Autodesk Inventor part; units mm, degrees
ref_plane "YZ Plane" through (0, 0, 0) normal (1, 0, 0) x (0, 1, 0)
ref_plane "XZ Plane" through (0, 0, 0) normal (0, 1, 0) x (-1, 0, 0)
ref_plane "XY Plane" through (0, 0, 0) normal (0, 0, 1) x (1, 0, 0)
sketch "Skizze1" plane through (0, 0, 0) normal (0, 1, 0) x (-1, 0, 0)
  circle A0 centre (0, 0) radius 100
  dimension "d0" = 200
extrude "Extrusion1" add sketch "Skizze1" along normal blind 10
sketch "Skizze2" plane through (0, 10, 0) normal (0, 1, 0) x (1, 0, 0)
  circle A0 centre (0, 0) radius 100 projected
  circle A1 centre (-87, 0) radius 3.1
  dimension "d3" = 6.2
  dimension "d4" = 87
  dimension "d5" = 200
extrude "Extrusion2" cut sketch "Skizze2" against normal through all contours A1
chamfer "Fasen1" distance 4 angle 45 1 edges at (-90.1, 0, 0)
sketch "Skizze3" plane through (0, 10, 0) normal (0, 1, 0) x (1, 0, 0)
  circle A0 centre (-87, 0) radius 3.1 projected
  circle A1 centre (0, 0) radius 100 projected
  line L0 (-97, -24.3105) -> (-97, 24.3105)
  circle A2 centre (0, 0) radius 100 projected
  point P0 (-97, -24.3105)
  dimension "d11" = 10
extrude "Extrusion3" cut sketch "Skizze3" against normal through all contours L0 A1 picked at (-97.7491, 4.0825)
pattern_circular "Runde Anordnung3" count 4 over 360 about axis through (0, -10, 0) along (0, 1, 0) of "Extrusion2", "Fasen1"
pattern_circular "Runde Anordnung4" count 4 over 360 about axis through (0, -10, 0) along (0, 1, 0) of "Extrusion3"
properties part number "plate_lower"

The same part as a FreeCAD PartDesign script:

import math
import FreeCAD as App
import Part
import Sketcher
Q = App.Units.Quantity


def edges_at(feature, points):
    """Names of the edges that pass closest to the given points."""
    edges = feature.Shape.Edges
    near = lambda p: min(range(len(edges)), key=lambda i: edges[i].distToShape(Part.Vertex(*p))[0])
    return sorted({f"Edge{near(p) + 1}" for p in points})

doc = App.newDocument("Part")
body = doc.addObject("PartDesign::Body", "Body")

# Sketch on XZ plane
sketch1 = body.newObject("Sketcher::SketchObject", "Sketch")
sketch1.AttachmentSupport = (doc.getObject("XZ_Plane"), [""])
sketch1.MapMode = "FlatFace"
sketch1.addGeometry(Part.Circle(App.Vector(0, 0, 0), App.Vector(0, 0, 1), 100), False)
sketch1.addConstraint(Sketcher.Constraint("Coincident", 0, 3, -1, 1))
sketch1.addConstraint(Sketcher.Constraint("Diameter", 0, Q("200 mm")))
pad1 = body.newObject("PartDesign::Pad", "Pad")
pad1.Profile = sketch1
pad1.Length = 10
pad1.Reversed = True

# Sketch on XZ plane
sketch2 = body.newObject("Sketcher::SketchObject", "Sketch001")
sketch2.AttachmentSupport = (doc.getObject("XZ_Plane"), [""])
sketch2.MapMode = "FlatFace"
sketch2.AttachmentOffset = App.Placement(App.Vector(0, 0, -10), App.Rotation())
sketch2.addGeometry(Part.Circle(App.Vector(-87, 0, 0), App.Vector(0, 0, 1), 3.1), False)
sketch2.addConstraint(Sketcher.Constraint("PointOnObject", 0, 3, -1))
sketch2.addConstraint(Sketcher.Constraint("Diameter", 0, Q("6.2 mm")))
sketch2.addConstraint(Sketcher.Constraint("DistanceX", 0, 3, -1, 1, Q("87 mm")))
pocket1 = body.newObject("PartDesign::Pocket", "Pocket")
pocket1.Profile = sketch2
pocket1.Type = "ThroughAll"
pocket1.Reversed = True
doc.recompute()

chamfer = body.newObject("PartDesign::Chamfer", "Chamfer")
chamfer.Base = (pocket1, edges_at(pocket1, [(-90.1, 0, 0)]))
chamfer.Size = 4

# Sketch on XZ plane
sketch3 = body.newObject("Sketcher::SketchObject", "Sketch002")
sketch3.AttachmentSupport = (doc.getObject("XZ_Plane"), [""])
sketch3.MapMode = "FlatFace"
sketch3.AttachmentOffset = App.Placement(App.Vector(0, 0, -10), App.Rotation())
sketch3.addGeometry(Part.LineSegment(App.Vector(-97, 24, 0), App.Vector(-97, -24, 0)), False)
sketch3.addGeometry(Part.ArcOfCircle(Part.Circle(App.Vector(0, 0, 0), App.Vector(0, 0, 1), 100), math.radians(166), math.radians(194)), False)
sketch3.addConstraint(Sketcher.Constraint("Coincident", 0, 1, 1, 1))
sketch3.addConstraint(Sketcher.Constraint("Coincident", 1, 2, 0, 2))
sketch3.addConstraint(Sketcher.Constraint("Vertical", 0))
sketch3.addConstraint(Sketcher.Constraint("Coincident", 1, 3, -1, 1))
sketch3.addConstraint(Sketcher.Constraint("Radius", 1, Q("100 mm")))
sketch3.addConstraint(Sketcher.Constraint("DistanceX", 0, 1, -1, 1, Q("97 mm")))
pocket2 = body.newObject("PartDesign::Pocket", "Pocket001")
pocket2.Profile = sketch3
pocket2.Type = "ThroughAll"
pocket2.Reversed = True
doc.recompute()

polarpattern = body.newObject("PartDesign::PolarPattern", "PolarPattern")
polarpattern.Originals = [pocket1, chamfer]
polarpattern.Axis = (doc.getObject("Y_Axis"), [""])
polarpattern.Angle = 360
polarpattern.Occurrences = 4
body.Tip = polarpattern
doc.recompute()

polarpattern2 = body.newObject("PartDesign::PolarPattern", "PolarPattern001")
polarpattern2.Originals = [pocket2]
polarpattern2.Axis = (doc.getObject("Y_Axis"), [""])
polarpattern2.Angle = 360
polarpattern2.Occurrences = 4
body.Tip = polarpattern2

doc.recompute()
